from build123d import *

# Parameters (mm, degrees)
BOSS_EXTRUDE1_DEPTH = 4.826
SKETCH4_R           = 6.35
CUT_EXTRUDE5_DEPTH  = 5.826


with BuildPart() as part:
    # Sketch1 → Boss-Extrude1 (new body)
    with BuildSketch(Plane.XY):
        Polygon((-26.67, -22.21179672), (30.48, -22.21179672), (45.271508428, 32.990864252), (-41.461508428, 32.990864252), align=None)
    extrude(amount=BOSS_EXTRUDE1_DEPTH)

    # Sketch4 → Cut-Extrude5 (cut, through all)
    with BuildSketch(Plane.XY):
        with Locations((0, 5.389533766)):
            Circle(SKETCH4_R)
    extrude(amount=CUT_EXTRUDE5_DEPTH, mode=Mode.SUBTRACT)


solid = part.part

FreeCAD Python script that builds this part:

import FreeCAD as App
import Part
import Sketcher

V = App.Vector
Q = App.Units.Quantity


def add_polygon(sketch, points):
    """Adds a closed chain of lines whose ends are joined by coincident constraints."""
    first, n = sketch.GeometryCount, len(points)
    for a, b in zip(points, points[1:] + points[:1]):
        sketch.addGeometry(Part.LineSegment(App.Vector(*a, 0), App.Vector(*b, 0)), False)
    for i in range(n):
        sketch.addConstraint(Sketcher.Constraint("Coincident", first + i, 2, first + (i + 1) % n, 1))

doc = App.newDocument("Part")
body = doc.addObject("PartDesign::Body", "Body")

sketch1 = doc.addObject("Sketcher::SketchObject", "Sketch")
body.addObject(sketch1)
sketch1.AttachmentSupport = (doc.XY_Plane, [""])
sketch1.MapMode = "FlatFace"
add_polygon(sketch1, [(-27, -22), (30, -22), (45, 33), (-41, 33)])
sketch1.addConstraint([
    Sketcher.Constraint("Horizontal", 0),
    Sketcher.Constraint("Horizontal", 2),
    Sketcher.Constraint("Equal", 1, 3),
    Sketcher.Constraint("Angle", 1, Q("75 deg")),
    Sketcher.Constraint("DistanceX", 0, 1, 0, 2, Q("2.25 in")),
    Sketcher.Constraint("DistanceX", -1, 1, 0, 2, Q("1.2 in")),
    Sketcher.Constraint("Distance", 1, Q("2.25 in")),
    Sketcher.Constraint("DistanceY", 0, 2, -1, 1, Q("22.211797 mm")),
])
pad1 = doc.addObject("PartDesign::Pad", "Pad")
body.addObject(pad1)
pad1.Profile = sketch1
pad1.Length = Q("0.19 in")

sketch2 = doc.addObject("Sketcher::SketchObject", "Sketch001")
body.addObject(sketch2)
sketch2.AttachmentSupport = (doc.XY_Plane, [""])
sketch2.MapMode = "FlatFace"
sketch2.addGeometry(Part.Circle(V(0, 5, 0), V(0, 0, 1), 6), False)
sketch2.addConstraint([
    Sketcher.Constraint("PointOnObject", 0, 3, -2),
    Sketcher.Constraint("Diameter", 0, Q("0.5 in")),
    Sketcher.Constraint("DistanceY", -1, 1, 0, 3, Q("5.389534 mm")),
])
pocket1 = doc.addObject("PartDesign::Pocket", "Pocket")
body.addObject(pocket1)
pocket1.Profile = sketch2
pocket1.Type = "ThroughAll"
pocket1.Reversed = True

doc.recompute()
